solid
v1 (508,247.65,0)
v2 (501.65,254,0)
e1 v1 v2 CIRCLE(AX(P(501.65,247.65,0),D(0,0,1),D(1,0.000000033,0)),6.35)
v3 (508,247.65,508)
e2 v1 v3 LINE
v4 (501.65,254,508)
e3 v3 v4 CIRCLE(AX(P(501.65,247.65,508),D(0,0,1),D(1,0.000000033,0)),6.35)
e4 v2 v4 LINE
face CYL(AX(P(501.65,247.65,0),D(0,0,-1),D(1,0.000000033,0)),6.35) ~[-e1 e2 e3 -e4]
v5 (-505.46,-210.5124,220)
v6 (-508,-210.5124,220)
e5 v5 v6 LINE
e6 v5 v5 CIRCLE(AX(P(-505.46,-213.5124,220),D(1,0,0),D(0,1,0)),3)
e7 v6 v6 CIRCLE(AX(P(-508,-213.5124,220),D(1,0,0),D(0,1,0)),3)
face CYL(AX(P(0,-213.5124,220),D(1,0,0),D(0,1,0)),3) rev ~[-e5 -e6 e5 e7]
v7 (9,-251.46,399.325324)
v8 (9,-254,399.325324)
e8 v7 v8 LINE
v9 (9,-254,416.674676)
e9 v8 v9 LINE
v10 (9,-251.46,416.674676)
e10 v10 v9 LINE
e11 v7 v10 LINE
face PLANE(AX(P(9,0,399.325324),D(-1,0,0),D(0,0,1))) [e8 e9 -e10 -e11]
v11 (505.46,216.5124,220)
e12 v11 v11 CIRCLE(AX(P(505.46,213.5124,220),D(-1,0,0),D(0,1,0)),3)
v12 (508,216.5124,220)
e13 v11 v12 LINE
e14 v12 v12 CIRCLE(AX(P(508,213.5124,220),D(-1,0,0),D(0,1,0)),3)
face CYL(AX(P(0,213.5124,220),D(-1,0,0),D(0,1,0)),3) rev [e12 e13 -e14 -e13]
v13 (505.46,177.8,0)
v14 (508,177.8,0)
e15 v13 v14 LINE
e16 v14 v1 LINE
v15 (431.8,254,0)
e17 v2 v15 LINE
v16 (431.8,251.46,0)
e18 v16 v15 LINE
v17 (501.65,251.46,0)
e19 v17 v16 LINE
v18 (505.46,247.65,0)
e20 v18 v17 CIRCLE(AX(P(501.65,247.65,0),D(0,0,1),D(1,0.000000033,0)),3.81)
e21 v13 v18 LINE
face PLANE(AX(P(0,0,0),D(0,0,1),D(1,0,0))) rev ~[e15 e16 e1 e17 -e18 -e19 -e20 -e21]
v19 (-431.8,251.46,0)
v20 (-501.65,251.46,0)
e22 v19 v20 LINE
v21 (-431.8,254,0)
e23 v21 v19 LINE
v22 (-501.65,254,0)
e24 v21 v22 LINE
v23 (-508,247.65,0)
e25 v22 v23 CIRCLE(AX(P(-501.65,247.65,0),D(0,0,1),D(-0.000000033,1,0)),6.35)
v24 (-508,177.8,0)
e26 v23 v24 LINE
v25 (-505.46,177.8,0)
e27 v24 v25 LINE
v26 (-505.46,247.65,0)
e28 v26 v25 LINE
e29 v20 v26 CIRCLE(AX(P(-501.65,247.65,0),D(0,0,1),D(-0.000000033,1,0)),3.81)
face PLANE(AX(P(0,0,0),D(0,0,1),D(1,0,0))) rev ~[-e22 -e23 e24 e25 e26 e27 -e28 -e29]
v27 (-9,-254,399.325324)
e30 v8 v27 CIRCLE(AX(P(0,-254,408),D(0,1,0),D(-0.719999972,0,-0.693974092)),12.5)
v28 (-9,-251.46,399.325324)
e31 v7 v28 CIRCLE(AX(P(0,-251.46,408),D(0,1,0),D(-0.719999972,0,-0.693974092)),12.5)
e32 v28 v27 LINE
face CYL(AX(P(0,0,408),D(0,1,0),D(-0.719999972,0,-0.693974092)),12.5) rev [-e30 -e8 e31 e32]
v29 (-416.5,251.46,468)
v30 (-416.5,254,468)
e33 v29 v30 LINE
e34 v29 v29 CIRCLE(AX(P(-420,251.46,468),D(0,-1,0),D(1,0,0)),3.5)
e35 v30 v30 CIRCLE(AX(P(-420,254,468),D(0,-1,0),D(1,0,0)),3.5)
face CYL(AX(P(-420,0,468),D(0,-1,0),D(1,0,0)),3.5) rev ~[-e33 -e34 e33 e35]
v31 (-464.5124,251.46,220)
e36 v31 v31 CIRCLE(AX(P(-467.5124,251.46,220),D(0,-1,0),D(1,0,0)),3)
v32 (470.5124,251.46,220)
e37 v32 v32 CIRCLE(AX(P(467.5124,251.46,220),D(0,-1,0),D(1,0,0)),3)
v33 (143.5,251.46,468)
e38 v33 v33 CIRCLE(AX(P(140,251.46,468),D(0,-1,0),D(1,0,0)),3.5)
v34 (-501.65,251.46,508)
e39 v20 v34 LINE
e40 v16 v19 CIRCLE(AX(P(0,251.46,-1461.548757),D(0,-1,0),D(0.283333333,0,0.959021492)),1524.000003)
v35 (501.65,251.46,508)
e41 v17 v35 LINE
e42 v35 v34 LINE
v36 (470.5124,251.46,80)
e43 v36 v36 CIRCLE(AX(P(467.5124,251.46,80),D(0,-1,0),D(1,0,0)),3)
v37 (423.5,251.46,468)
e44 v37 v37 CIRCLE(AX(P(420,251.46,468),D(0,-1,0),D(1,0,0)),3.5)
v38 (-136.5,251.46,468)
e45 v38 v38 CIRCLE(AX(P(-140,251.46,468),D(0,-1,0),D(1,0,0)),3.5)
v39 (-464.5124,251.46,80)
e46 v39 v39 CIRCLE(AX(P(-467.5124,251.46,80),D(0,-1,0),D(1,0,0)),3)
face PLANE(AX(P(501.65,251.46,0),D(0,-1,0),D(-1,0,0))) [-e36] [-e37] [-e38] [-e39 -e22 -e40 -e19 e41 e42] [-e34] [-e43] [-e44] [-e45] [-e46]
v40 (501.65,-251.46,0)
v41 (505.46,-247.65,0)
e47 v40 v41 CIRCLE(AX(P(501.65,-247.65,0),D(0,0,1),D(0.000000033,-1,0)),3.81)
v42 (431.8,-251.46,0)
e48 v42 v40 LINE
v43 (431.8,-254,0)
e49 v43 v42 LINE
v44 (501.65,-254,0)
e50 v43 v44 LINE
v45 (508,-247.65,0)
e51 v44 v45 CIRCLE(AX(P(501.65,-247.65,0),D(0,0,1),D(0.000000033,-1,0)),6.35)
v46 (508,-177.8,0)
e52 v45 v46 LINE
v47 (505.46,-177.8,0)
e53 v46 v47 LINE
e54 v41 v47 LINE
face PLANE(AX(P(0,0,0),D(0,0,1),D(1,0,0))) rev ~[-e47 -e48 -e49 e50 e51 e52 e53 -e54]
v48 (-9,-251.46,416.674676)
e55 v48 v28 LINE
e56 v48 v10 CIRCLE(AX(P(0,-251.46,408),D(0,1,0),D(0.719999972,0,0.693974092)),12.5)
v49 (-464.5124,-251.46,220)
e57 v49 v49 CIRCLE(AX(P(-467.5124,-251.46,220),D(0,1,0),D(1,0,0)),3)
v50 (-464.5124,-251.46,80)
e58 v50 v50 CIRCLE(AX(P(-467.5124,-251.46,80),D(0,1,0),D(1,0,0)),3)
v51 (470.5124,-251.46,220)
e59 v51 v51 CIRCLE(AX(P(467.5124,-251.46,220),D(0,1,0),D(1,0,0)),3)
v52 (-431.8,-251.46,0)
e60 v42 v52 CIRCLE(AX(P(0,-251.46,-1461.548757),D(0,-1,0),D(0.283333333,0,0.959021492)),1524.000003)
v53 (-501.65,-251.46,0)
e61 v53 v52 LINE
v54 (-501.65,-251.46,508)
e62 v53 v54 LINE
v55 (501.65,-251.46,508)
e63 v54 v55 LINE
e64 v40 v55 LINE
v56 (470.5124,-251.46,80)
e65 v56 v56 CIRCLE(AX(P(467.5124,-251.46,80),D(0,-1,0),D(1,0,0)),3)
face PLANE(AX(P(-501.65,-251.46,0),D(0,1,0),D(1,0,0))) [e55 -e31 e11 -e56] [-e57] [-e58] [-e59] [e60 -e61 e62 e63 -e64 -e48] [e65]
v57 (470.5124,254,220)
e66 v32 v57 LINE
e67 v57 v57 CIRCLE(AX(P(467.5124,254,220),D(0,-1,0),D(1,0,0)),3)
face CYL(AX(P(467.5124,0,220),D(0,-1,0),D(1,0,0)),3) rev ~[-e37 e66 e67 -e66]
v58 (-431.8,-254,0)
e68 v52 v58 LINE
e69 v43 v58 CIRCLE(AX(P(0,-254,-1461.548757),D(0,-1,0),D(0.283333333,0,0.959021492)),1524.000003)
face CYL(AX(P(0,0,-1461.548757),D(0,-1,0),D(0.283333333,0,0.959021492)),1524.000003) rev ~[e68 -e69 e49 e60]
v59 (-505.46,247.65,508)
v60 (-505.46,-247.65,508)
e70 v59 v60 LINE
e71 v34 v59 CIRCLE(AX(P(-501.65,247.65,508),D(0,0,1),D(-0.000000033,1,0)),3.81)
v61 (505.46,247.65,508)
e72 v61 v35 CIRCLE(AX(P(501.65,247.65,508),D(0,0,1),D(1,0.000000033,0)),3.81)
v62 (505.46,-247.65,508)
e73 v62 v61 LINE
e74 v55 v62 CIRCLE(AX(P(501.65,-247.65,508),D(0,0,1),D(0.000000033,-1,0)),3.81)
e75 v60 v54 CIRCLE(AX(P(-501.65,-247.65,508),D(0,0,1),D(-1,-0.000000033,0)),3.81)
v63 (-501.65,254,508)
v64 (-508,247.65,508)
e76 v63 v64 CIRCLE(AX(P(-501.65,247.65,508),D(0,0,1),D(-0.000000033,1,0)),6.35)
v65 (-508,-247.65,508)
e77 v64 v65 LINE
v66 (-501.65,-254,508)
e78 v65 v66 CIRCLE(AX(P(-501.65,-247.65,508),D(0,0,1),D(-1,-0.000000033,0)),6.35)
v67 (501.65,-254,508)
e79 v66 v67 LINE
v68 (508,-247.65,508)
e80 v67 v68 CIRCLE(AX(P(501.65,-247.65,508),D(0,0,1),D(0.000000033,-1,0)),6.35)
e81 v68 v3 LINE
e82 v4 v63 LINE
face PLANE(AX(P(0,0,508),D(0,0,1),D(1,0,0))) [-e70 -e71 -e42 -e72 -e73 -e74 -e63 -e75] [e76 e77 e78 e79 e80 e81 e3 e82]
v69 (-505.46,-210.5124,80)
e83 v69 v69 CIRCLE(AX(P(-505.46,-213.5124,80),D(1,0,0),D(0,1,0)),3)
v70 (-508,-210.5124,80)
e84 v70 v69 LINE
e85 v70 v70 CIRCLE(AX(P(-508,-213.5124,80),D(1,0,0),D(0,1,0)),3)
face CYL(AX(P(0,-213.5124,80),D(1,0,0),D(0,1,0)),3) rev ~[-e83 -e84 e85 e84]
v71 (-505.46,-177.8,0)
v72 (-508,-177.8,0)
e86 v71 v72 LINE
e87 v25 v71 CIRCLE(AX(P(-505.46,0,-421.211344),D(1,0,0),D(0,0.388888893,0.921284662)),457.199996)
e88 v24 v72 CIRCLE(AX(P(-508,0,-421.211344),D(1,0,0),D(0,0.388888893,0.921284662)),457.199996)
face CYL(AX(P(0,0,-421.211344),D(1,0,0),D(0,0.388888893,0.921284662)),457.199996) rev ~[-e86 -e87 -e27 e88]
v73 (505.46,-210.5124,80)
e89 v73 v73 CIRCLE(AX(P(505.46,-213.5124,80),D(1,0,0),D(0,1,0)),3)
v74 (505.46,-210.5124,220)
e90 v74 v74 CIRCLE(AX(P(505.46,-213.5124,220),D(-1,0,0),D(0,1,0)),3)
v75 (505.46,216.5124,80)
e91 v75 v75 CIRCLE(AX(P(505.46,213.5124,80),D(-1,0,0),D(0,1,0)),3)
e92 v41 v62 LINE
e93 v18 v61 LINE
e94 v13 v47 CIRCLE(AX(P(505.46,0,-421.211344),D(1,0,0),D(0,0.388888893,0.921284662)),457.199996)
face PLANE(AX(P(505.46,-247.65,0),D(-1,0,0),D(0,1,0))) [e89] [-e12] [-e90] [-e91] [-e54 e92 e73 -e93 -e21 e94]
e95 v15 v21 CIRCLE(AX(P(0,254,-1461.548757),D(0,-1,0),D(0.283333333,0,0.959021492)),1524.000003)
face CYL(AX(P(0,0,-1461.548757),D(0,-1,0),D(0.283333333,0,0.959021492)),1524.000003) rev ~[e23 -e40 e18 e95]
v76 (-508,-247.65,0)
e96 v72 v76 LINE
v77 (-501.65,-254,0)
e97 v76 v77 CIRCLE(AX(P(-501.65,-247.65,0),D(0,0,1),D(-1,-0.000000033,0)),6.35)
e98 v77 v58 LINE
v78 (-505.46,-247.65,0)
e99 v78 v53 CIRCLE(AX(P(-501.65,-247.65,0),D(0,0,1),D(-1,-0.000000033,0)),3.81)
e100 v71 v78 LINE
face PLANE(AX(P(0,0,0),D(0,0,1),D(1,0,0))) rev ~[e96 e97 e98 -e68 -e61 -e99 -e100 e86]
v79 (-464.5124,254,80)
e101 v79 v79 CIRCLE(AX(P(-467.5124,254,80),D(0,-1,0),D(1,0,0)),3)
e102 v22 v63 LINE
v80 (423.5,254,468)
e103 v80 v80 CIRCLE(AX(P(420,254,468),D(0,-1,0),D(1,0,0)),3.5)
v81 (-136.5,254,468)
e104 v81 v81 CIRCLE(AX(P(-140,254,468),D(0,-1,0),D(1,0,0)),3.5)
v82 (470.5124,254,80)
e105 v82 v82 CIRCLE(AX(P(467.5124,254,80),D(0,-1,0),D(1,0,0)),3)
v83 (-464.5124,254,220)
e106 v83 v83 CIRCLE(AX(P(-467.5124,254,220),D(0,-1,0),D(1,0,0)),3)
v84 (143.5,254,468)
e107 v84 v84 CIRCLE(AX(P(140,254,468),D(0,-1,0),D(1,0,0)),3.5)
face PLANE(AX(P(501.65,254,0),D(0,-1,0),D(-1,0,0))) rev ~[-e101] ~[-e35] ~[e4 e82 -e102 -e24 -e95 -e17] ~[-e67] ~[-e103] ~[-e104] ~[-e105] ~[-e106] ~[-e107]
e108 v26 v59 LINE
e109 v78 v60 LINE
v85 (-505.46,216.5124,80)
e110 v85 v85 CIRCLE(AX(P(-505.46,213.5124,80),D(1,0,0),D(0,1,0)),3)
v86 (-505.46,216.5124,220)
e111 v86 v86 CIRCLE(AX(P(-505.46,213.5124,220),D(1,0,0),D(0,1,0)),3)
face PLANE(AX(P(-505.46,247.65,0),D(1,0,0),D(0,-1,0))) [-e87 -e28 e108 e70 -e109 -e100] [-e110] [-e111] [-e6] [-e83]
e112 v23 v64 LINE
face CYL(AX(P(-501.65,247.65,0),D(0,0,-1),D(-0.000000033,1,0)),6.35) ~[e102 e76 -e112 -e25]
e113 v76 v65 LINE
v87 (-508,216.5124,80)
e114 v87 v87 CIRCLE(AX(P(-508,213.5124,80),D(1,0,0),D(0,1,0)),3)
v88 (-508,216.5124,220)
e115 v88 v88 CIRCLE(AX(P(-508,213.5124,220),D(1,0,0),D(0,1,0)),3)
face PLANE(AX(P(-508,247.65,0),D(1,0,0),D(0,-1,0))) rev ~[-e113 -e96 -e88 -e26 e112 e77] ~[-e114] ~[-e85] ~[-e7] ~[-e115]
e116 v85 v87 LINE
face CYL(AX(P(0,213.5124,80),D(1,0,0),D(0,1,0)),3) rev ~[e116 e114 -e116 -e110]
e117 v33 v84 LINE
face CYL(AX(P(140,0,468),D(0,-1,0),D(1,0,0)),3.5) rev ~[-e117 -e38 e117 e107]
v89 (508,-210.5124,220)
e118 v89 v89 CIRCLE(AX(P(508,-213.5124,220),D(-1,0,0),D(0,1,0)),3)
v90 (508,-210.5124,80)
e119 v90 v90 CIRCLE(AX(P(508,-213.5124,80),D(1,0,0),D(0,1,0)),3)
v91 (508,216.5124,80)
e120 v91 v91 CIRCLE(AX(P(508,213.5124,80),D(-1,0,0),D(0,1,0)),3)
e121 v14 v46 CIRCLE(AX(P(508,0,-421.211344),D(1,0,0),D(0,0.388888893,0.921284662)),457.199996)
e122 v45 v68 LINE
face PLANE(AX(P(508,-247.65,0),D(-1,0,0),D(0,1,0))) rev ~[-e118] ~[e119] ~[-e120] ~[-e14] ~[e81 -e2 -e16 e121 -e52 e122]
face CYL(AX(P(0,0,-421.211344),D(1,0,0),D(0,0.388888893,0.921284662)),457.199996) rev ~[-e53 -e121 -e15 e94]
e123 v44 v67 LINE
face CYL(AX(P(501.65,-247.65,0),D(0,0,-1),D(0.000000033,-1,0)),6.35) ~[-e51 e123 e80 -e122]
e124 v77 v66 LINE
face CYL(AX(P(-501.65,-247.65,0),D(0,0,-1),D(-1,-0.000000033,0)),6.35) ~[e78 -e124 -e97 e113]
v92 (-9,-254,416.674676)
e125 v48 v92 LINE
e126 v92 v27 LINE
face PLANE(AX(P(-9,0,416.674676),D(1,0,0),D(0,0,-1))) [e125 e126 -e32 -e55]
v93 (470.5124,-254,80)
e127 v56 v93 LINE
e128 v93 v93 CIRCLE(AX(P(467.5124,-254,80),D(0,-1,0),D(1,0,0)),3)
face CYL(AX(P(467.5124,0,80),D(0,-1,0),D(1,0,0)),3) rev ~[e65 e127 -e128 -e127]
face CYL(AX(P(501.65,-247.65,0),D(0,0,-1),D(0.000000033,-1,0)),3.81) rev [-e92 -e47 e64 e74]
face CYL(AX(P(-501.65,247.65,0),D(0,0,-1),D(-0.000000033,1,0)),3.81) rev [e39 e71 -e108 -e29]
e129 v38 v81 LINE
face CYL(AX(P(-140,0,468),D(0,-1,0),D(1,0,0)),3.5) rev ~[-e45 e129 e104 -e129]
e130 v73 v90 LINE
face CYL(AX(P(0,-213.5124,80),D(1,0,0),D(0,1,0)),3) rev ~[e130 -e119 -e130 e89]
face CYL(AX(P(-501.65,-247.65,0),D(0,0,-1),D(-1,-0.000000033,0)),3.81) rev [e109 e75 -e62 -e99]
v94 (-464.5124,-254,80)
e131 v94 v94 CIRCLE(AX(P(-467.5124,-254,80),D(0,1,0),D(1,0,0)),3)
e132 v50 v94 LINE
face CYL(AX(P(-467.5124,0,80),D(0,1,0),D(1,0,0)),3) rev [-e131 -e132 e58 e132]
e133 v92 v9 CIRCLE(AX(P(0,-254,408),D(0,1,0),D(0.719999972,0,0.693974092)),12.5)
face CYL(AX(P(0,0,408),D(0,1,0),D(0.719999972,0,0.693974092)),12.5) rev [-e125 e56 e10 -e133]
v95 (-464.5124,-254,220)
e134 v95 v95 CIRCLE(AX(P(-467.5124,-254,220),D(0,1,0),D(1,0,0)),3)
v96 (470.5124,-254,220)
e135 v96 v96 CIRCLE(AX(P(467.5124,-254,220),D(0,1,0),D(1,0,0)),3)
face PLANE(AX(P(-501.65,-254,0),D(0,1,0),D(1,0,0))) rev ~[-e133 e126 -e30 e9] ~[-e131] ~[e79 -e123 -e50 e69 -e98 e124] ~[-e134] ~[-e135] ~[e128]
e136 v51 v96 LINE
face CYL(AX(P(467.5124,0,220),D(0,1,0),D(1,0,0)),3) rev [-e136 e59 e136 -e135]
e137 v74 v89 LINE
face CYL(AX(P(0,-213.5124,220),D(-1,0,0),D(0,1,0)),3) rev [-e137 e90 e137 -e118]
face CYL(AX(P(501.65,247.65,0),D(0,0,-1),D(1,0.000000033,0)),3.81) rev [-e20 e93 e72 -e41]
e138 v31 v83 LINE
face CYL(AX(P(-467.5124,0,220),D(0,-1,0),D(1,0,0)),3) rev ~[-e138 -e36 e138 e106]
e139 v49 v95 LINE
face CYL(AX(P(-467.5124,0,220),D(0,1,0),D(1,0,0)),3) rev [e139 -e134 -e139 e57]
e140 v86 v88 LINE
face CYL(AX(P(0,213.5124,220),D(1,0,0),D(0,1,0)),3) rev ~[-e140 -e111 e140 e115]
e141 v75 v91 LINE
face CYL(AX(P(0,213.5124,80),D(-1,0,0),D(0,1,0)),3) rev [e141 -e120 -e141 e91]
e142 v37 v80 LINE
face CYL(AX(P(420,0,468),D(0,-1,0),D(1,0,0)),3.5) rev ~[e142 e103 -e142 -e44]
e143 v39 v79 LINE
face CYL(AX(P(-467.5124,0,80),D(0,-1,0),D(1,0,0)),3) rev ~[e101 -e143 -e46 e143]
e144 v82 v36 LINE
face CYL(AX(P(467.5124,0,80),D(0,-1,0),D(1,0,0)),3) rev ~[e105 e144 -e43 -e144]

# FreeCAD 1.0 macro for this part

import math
import FreeCAD as App
import Part
import Sketcher

V = App.Vector
Q = App.Units.Quantity


def faces_at(feature, points):
    """Names of the faces that lie closest to the given points."""
    faces = feature.Shape.Faces
    near = lambda p: min(range(len(faces)), key=lambda i: faces[i].distToShape(Part.Vertex(*p))[0])
    return sorted({f"Face{near(p) + 1}" for p in points})

doc = App.newDocument("Part")
body = doc.addObject("PartDesign::Body", "Body")

# Sketch on XY plane
sketch1 = body.newObject("Sketcher::SketchObject", "Sketch")
sketch1.AttachmentSupport = (doc.getObject("XY_Plane"), [""])
sketch1.MapMode = "FlatFace"
sketch1.addGeometry([
    Part.ArcOfCircle(Part.Circle(V(502, 248, 0), V(0, 0, 1), 6), math.radians(0), math.radians(90)),  # 0
    Part.LineSegment(V(502, 254, 0), V(-502, 254, 0)),  # 1
    Part.ArcOfCircle(Part.Circle(V(-502, 248, 0), V(0, 0, 1), 6), math.radians(90), math.radians(180)),  # 2
    Part.LineSegment(V(-508, 248, 0), V(-508, -248, 0)),  # 3
    Part.ArcOfCircle(Part.Circle(V(-502, -248, 0), V(0, 0, 1), 6), math.radians(-180), math.radians(-90)),  # 4
    Part.LineSegment(V(-502, -254, 0), V(502, -254, 0)),  # 5
    Part.ArcOfCircle(Part.Circle(V(502, -248, 0), V(0, 0, 1), 6), math.radians(-90), math.radians(0)),  # 6
    Part.LineSegment(V(508, -248, 0), V(508, 248, 0)),  # 7
], False)
sketch1.addConstraint([
    Sketcher.Constraint("Tangent", 0, 2, 1, 1),
    Sketcher.Constraint("Tangent", 1, 2, 2, 1),
    Sketcher.Constraint("Tangent", 2, 2, 3, 1),
    Sketcher.Constraint("Tangent", 3, 2, 4, 1),
    Sketcher.Constraint("Tangent", 4, 2, 5, 1),
    Sketcher.Constraint("Tangent", 5, 2, 6, 1),
    Sketcher.Constraint("Tangent", 6, 2, 7, 1),
    Sketcher.Constraint("Tangent", 7, 2, 0, 1),
    Sketcher.Constraint("Horizontal", 1),
    Sketcher.Constraint("Vertical", 3),
    Sketcher.Constraint("Horizontal", 5),
    Sketcher.Constraint("Vertical", 7),
    Sketcher.Constraint("Equal", 0, 2),
    Sketcher.Constraint("Equal", 2, 4),
    Sketcher.Constraint("Equal", 4, 6),
    Sketcher.Constraint("Symmetric", 0, 3, 4, 3, -1, 1),
    Sketcher.Constraint("Radius", 0, Q("0.25 in")),
    Sketcher.Constraint("DistanceX", 1, 2, 1, 1, Q("39.5 in")),
    Sketcher.Constraint("DistanceY", 3, 2, 3, 1, Q("19.5 in")),
])
pad1 = body.newObject("PartDesign::Pad", "Pad")
pad1.Profile = sketch1
pad1.Length = Q("20 in")
doc.recompute()

thickness = body.newObject("PartDesign::Thickness", "Thickness")
thickness.Base = (pad1, faces_at(pad1, [(0, 0, 508), (0, 0, 0)]))
thickness.Value = Q("0.1 in")
thickness.Reversed = True
thickness.Join = "Arc"

# Sketch on XZ plane
sketch2 = body.newObject("Sketcher::SketchObject", "Sketch001")
sketch2.AttachmentSupport = (doc.getObject("XZ_Plane"), [""])
sketch2.MapMode = "FlatFace"
sketch2.addGeometry([
    Part.ArcOfCircle(Part.Circle(V(0, -1462, 0), V(0, 0, 1), 1524), math.radians(74), math.radians(106)),
    Part.LineSegment(V(-432, 0, 0), V(432, 0, 0)),
], False)
sketch2.addConstraint([
    Sketcher.Constraint("Coincident", 0, 1, 1, 2),
    Sketcher.Constraint("Coincident", 1, 1, 0, 2),
    Sketcher.Constraint("Horizontal", 1),
    Sketcher.Constraint("PointOnObject", 0, 3, -2),
    Sketcher.Constraint("PointOnObject", 1, 1, -1),
    Sketcher.Constraint("Radius", 0, Q("60.0000001 in")),
    Sketcher.Constraint("DistanceX", 1, 1, 1, 2, Q("34 in")),
])
pocket1 = body.newObject("PartDesign::Pocket", "Pocket")
pocket1.Profile = sketch2
pocket1.Length = Q("30 in")
pocket1.Midplane = True

# Sketch on YZ plane
sketch3 = body.newObject("Sketcher::SketchObject", "Sketch002")
sketch3.AttachmentSupport = (doc.getObject("YZ_Plane"), [""])
sketch3.MapMode = "FlatFace"
sketch3.addGeometry([
    Part.LineSegment(V(-178, 0, 0), V(178, 0, 0)),
    Part.ArcOfCircle(Part.Circle(V(0, -421, 0), V(0, 0, 1), 457), math.radians(67), math.radians(113)),
], False)
sketch3.addConstraint([
    Sketcher.Constraint("Coincident", 0, 1, 1, 2),
    Sketcher.Constraint("Coincident", 1, 1, 0, 2),
    Sketcher.Constraint("Horizontal", 0),
    Sketcher.Constraint("Symmetric", 0, 1, 1, 1, -1, 1),
    Sketcher.Constraint("Radius", 1, Q("17.9999998 in")),
    Sketcher.Constraint("DistanceX", 0, 1, 0, 2, Q("14 in")),
])
pocket2 = body.newObject("PartDesign::Pocket", "Pocket001")
pocket2.Profile = sketch3
pocket2.Length = Q("50 in")
pocket2.Midplane = True

# Sketch on XZ plane
sketch4 = body.newObject("Sketcher::SketchObject", "Sketch003")
sketch4.AttachmentSupport = (doc.getObject("XZ_Plane"), [""])
sketch4.MapMode = "FlatFace"
sketch4.addGeometry([
    Part.Circle(V(420, 468, 0), V(0, 0, 1), 3.5),
    Part.Circle(V(140, 468, 0), V(0, 0, 1), 3.5),
    Part.Circle(V(-140, 468, 0), V(0, 0, 1), 3.5),
    Part.Circle(V(-420, 468, 0), V(0, 0, 1), 3.5),
], False)
sketch4.addConstraint([
    Sketcher.Constraint("Equal", 0, 1),
    Sketcher.Constraint("Equal", 1, 2),
    Sketcher.Constraint("Equal", 2, 3),
    Sketcher.Constraint("Symmetric", 1, 3, 2, 3, -2),
    Sketcher.Constraint("Symmetric", 0, 3, 3, 3, -2),
    Sketcher.Constraint("Horizontal", 0, 3, 1, 3),
    Sketcher.Constraint("Diameter", 0, Q("7 mm")),
    Sketcher.Constraint("DistanceX", -1, 1, 0, 3, Q("420 mm")),
    Sketcher.Constraint("DistanceY", -1, 1, 0, 3, Q("468 mm")),
    Sketcher.Constraint("DistanceX", -1, 1, 1, 3, Q("140 mm")),
])
pocket3 = body.newObject("PartDesign::Pocket", "Pocket002")
pocket3.Profile = sketch4
pocket3.Type = "ThroughAll"

# Sketch on XZ plane
sketch5 = body.newObject("Sketcher::SketchObject", "Sketch004")
sketch5.AttachmentSupport = (doc.getObject("XZ_Plane"), [""])
sketch5.MapMode = "FlatFace"
sketch5.addGeometry([
    Part.LineSegment(V(-9, 417, 0), V(-9, 399, 0)),
    Part.ArcOfCircle(Part.Circle(V(0, 408, 0), V(0, 0, 1), 13), math.radians(-136), math.radians(-44)),
    Part.LineSegment(V(9, 399, 0), V(9, 417, 0)),
    Part.ArcOfCircle(Part.Circle(V(0, 408, 0), V(0, 0, 1), 13), math.radians(44), math.radians(136)),
], False)
sketch5.addConstraint([
    Sketcher.Constraint("Coincident", 0, 2, 1, 1),
    Sketcher.Constraint("Coincident", 1, 2, 2, 1),
    Sketcher.Constraint("Coincident", 2, 2, 3, 1),
    Sketcher.Constraint("Coincident", 3, 2, 0, 1),
    Sketcher.Constraint("Vertical", 0),
    Sketcher.Constraint("Vertical", 2),
    Sketcher.Constraint("Coincident", 3, 3, 1, 3),
    Sketcher.Constraint("Equal", 1, 3),
    Sketcher.Constraint("Symmetric", 0, 2, 1, 2, -2),
    Sketcher.Constraint("Radius", 1, Q("12.5 mm")),
    Sketcher.Constraint("DistanceY", 0, 2, 0, 1, Q("17.349352 mm")),
    Sketcher.Constraint("DistanceY", -1, 1, 1, 3, Q("408 mm")),
])
pocket4 = body.newObject("PartDesign::Pocket", "Pocket003")
pocket4.Profile = sketch5
pocket4.Type = "ThroughAll"
pocket4.Reversed = True

# Sketch on XZ plane
sketch6 = body.newObject("Sketcher::SketchObject", "Sketch005")
sketch6.AttachmentSupport = (doc.getObject("XZ_Plane"), [""])
sketch6.MapMode = "FlatFace"
sketch6.addGeometry([
    Part.Circle(V(-467.5, 220, 0), V(0, 0, 1), 3),
    Part.Circle(V(-467.5, 80, 0), V(0, 0, 1), 3),
    Part.Circle(V(467.5, 220, 0), V(0, 0, 1), 3),
    Part.Circle(V(467.5, 80, 0), V(0, 0, 1), 3),
], False)
sketch6.addConstraint([
    Sketcher.Constraint("Equal", 0, 1),
    Sketcher.Constraint("Equal", 1, 2),
    Sketcher.Constraint("Equal", 2, 3),
    Sketcher.Constraint("Symmetric", 0, 3, 2, 3, -2),
    Sketcher.Constraint("Symmetric", 1, 3, 3, 3, -2),
    Sketcher.Constraint("Vertical", 0, 3, 1, 3),
    Sketcher.Constraint("Diameter", 0, Q("6 mm")),
    Sketcher.Constraint("DistanceX", 0, 3, -1, 1, Q("18.406 in")),
    Sketcher.Constraint("DistanceY", -1, 1, 0, 3, Q("220 mm")),
    Sketcher.Constraint("DistanceY", -1, 1, 1, 3, Q("80 mm")),
])
pocket5 = body.newObject("PartDesign::Pocket", "Pocket004")
pocket5.Profile = sketch6
pocket5.Length = Q("30 in")
pocket5.Midplane = True

# Sketch on YZ plane
sketch7 = body.newObject("Sketcher::SketchObject", "Sketch006")
sketch7.AttachmentSupport = (doc.getObject("YZ_Plane"), [""])
sketch7.MapMode = "FlatFace"
sketch7.addGeometry([
    Part.Circle(V(213.5, 220, 0), V(0, 0, 1), 3),
    Part.Circle(V(213.5, 80, 0), V(0, 0, 1), 3),
    Part.Circle(V(-213.5, 220, 0), V(0, 0, 1), 3),
    Part.Circle(V(-213.5, 80, 0), V(0, 0, 1), 3),
], False)
sketch7.addConstraint([
    Sketcher.Constraint("Equal", 0, 1),
    Sketcher.Constraint("Equal", 1, 2),
    Sketcher.Constraint("Equal", 2, 3),
    Sketcher.Constraint("Symmetric", 0, 3, 2, 3, -2),
    Sketcher.Constraint("Symmetric", 1, 3, 3, 3, -2),
    Sketcher.Constraint("Vertical", 0, 3, 1, 3),
    Sketcher.Constraint("Diameter", 0, Q("6 mm")),
    Sketcher.Constraint("DistanceX", -1, 1, 0, 3, Q("8.406 in")),
    Sketcher.Constraint("DistanceY", -1, 1, 0, 3, Q("220 mm")),
    Sketcher.Constraint("DistanceY", -1, 1, 1, 3, Q("80 mm")),
])
pocket6 = body.newObject("PartDesign::Pocket", "Pocket005")
pocket6.Profile = sketch7
pocket6.Length = Q("100 in")
pocket6.Midplane = True

doc.recompute()
